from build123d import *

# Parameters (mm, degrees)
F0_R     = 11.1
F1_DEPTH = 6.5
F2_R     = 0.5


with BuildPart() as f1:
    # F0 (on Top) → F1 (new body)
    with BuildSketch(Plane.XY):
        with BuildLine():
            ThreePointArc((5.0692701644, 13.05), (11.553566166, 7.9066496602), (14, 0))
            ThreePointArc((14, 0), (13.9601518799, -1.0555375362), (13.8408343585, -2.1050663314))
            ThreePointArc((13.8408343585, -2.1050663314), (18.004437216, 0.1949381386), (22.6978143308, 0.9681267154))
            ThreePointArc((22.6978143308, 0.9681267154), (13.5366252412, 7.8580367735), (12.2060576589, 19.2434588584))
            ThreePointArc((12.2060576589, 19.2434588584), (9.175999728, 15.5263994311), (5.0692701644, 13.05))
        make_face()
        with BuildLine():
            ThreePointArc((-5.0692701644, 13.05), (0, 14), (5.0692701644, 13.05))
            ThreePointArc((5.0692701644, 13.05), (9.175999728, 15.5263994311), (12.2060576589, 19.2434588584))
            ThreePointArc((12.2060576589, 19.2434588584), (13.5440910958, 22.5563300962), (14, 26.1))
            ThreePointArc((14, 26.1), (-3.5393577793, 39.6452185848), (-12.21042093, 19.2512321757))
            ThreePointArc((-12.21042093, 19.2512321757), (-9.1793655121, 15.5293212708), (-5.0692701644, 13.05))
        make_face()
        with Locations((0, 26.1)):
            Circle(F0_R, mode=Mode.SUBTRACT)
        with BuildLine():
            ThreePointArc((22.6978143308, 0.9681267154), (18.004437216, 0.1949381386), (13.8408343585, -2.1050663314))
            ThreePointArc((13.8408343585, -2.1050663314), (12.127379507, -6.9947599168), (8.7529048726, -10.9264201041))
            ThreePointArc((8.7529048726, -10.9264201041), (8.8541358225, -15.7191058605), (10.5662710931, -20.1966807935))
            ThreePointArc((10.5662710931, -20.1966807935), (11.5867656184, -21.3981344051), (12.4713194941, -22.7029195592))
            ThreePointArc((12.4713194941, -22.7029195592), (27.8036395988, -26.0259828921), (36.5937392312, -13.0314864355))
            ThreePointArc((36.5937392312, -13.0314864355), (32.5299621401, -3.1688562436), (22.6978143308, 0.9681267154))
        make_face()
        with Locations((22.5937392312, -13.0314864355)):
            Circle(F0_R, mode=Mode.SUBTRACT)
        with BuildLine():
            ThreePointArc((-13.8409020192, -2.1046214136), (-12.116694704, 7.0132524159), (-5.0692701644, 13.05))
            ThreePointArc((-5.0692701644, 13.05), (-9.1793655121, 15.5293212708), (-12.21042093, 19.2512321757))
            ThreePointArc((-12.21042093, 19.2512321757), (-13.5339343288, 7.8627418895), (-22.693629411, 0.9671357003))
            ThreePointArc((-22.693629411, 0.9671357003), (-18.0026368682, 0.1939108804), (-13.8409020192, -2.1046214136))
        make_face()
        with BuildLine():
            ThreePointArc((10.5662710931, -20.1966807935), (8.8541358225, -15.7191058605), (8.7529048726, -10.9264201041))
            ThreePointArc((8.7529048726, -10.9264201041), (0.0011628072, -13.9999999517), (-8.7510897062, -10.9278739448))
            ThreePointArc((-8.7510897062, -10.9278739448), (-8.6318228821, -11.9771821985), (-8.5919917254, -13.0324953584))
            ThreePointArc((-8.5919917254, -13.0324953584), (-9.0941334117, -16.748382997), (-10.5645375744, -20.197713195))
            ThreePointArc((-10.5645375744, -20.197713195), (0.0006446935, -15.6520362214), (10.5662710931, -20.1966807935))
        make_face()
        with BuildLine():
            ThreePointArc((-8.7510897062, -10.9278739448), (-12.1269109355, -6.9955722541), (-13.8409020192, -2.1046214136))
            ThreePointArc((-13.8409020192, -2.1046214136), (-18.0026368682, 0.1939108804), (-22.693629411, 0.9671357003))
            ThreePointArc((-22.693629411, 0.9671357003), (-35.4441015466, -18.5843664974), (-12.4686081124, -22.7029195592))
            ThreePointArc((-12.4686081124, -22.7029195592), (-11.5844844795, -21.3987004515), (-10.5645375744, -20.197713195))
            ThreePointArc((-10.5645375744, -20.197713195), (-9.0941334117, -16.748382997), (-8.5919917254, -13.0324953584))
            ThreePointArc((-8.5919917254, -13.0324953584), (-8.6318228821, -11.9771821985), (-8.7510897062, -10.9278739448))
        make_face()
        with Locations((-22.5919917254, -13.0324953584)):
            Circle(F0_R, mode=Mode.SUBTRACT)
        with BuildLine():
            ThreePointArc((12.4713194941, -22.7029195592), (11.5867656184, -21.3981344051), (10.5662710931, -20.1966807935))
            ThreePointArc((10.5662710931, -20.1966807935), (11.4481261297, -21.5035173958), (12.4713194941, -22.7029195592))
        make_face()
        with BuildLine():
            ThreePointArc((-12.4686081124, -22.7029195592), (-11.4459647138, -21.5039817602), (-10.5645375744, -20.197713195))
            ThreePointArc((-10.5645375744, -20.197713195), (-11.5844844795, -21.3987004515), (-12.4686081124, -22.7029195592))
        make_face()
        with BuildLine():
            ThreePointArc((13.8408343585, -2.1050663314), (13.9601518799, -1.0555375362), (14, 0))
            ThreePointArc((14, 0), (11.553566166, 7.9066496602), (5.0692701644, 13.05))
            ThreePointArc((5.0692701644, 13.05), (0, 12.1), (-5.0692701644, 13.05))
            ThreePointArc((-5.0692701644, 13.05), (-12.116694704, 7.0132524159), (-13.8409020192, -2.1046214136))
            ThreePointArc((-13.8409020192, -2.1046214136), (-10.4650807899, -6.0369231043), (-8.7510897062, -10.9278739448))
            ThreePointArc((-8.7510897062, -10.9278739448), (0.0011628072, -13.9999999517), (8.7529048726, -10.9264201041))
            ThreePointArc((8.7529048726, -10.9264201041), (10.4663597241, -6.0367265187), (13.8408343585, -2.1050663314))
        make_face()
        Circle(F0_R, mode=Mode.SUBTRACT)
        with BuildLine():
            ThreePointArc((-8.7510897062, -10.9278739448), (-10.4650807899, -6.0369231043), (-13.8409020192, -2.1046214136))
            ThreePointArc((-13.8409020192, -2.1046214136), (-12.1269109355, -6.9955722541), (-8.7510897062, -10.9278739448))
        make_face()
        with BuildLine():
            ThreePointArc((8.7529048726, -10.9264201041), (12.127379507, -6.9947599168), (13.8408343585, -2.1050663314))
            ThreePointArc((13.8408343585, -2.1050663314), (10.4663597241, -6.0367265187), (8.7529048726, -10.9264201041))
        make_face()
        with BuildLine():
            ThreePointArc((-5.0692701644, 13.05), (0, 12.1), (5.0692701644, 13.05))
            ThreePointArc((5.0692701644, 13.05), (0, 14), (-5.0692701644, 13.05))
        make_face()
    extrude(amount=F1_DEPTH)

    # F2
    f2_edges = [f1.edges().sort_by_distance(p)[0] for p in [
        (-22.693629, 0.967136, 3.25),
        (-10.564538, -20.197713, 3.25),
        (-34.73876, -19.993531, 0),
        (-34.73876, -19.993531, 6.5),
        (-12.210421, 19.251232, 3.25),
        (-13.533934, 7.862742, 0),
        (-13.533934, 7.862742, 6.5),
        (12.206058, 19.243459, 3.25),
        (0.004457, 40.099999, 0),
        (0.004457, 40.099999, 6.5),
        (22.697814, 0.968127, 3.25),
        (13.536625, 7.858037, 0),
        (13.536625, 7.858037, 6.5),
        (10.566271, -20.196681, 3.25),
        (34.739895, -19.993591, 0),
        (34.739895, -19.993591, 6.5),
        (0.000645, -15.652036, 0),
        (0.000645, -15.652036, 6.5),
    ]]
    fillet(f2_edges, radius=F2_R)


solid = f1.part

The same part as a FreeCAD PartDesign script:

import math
import FreeCAD as App
import Part
import Sketcher


def edges_at(feature, points):
    """Names of the edges that pass closest to the given points."""
    edges = feature.Shape.Edges
    near = lambda p: min(range(len(edges)), key=lambda i: edges[i].distToShape(Part.Vertex(*p))[0])
    return sorted({f"Edge{near(p) + 1}" for p in points})

doc = App.newDocument("Part")
body = doc.addObject("PartDesign::Body", "Body")

# Sketch on XY plane
sketch1 = doc.addObject("Sketcher::SketchObject", "Sketch")
body.addObject(sketch1)
sketch1.AttachmentSupport = (doc.XY_Plane, [""])
sketch1.MapMode = "FlatFace"
sketch1.addGeometry(Part.ArcOfCircle(Part.Circle(App.Vector(0.001356, -30.204465, 0), App.Vector(0, 0, 1), 14.552429), math.radians(43.448746), math.radians(136.556852)), False)
sketch1.addGeometry(Part.ArcOfCircle(Part.Circle(App.Vector(22.593739, -13.031486, 0), App.Vector(0, 0, 1), 14), math.radians(-149.216225), math.radians(-136.305211)), False)
sketch1.addGeometry(Part.ArcOfCircle(Part.Circle(App.Vector(22.593739, -13.031486, 0), App.Vector(0, 0, 1), 14), math.radians(-136.305211), math.radians(0)), False)
sketch1.addGeometry(Part.ArcOfCircle(Part.Circle(App.Vector(22.593739, -13.031486, 0), App.Vector(0, 0, 1), 14), math.radians(0), math.radians(89.574063)), False)
sketch1.addGeometry(Part.ArcOfCircle(Part.Circle(App.Vector(26.157156, 15.103406, 0), App.Vector(0, 0, 1), 14.552429), math.radians(163.471503), math.radians(256.248238)), False)
sketch1.addGeometry(Part.ArcOfCircle(Part.Circle(App.Vector(0, 26.1, 0), App.Vector(0, 0, 1), 14), math.radians(-29.324344), math.radians(0)), False)
sketch1.addGeometry(Part.ArcOfCircle(Part.Circle(App.Vector(0, 26.1, 0), App.Vector(0, 0, 1), 14), math.radians(0), math.radians(209.287862)), False)
sketch1.addGeometry(Part.ArcOfCircle(Part.Circle(App.Vector(-26.158512, 15.101058, 0), App.Vector(0, 0, 1), 14.552429), math.radians(-76.225779), math.radians(16.570069)), False)
sketch1.addGeometry(Part.ArcOfCircle(Part.Circle(App.Vector(-22.591992, -13.032495, 0), App.Vector(0, 0, 1), 14), math.radians(90.415962), math.radians(316.310922)), False)
sketch1.addGeometry(Part.ArcOfCircle(Part.Circle(App.Vector(-22.591992, -13.032495, 0), App.Vector(0, 0, 1), 14), math.radians(-43.689078), math.radians(-30.783886)), False)
sketch1.addGeometry(Part.Circle(App.Vector(-22.591992, -13.032495, 0), App.Vector(0, 0, 1), 11.1), False)
sketch1.addGeometry(Part.Circle(App.Vector(0, 0, 0), App.Vector(0, 0, 1), 11.1), False)
sketch1.addGeometry(Part.Circle(App.Vector(22.593739, -13.031486, 0), App.Vector(0, 0, 1), 11.1), False)
sketch1.addGeometry(Part.Circle(App.Vector(0, 26.1, 0), App.Vector(0, 0, 1), 11.1), False)
sketch1.addConstraint(Sketcher.Constraint("Coincident", 0, 1, 1, 1))
sketch1.addConstraint(Sketcher.Constraint("Tangent", 1, 2, 2, 1))
sketch1.addConstraint(Sketcher.Constraint("Tangent", 2, 2, 3, 1))
sketch1.addConstraint(Sketcher.Constraint("Coincident", 3, 2, 4, 2))
sketch1.addConstraint(Sketcher.Constraint("Coincident", 4, 1, 5, 1))
sketch1.addConstraint(Sketcher.Constraint("Tangent", 5, 2, 6, 1))
sketch1.addConstraint(Sketcher.Constraint("Coincident", 6, 2, 7, 2))
sketch1.addConstraint(Sketcher.Constraint("Coincident", 7, 1, 8, 1))
sketch1.addConstraint(Sketcher.Constraint("Tangent", 8, 2, 9, 1))
sketch1.addConstraint(Sketcher.Constraint("Coincident", 9, 2, 0, 2))
sketch1.addConstraint(Sketcher.Constraint("Coincident", 11, 3, -1, 1))
sketch1.addConstraint(Sketcher.Constraint("Coincident", 3, 3, 1, 3))
sketch1.addConstraint(Sketcher.Constraint("Coincident", 10, 3, 8, 3))
sketch1.addConstraint(Sketcher.Constraint("Coincident", 12, 3, 1, 3))
sketch1.addConstraint(Sketcher.Constraint("Coincident", 13, 3, 5, 3))
sketch1.addConstraint(Sketcher.Constraint("Equal", 0, 4))
sketch1.addConstraint(Sketcher.Constraint("Equal", 3, 5))
sketch1.addConstraint(Sketcher.Constraint("Equal", 5, 6))
sketch1.addConstraint(Sketcher.Constraint("Equal", 4, 7))
sketch1.addConstraint(Sketcher.Constraint("Equal", 6, 8))
sketch1.addConstraint(Sketcher.Constraint("Equal", 8, 9))
sketch1.addConstraint(Sketcher.Constraint("Equal", 10, 11))
sketch1.addConstraint(Sketcher.Constraint("Equal", 11, 12))
sketch1.addConstraint(Sketcher.Constraint("Equal", 12, 13))
sketch1.addConstraint(Sketcher.Constraint("PointOnObject", 5, 3, -2))
sketch1.addConstraint(Sketcher.Constraint("Horizontal", 12, 3, 2, 2))
sketch1.addConstraint(Sketcher.Constraint("Horizontal", 13, 3, 5, 2))
sketch1.addConstraint(Sketcher.Constraint("Horizontal", 1, 2, 8, 2))
sketch1.addConstraint(Sketcher.Constraint("Radius", 1, 14.0))
sketch1.addConstraint(Sketcher.Constraint("Diameter", 10, 22.2))
sketch1.addConstraint(Sketcher.Constraint("DistanceY", -1, 1, 5, 3, 26.1))
sketch1.addConstraint(Sketcher.Constraint("Radius", 0, 14.552429))
sketch1.addConstraint(Sketcher.Constraint("DistanceX", 0, 3, 4, 3, 26.1558))
sketch1.addConstraint(Sketcher.Constraint("DistanceX", 4, 1, 4, 3, 13.951098))
sketch1.addConstraint(Sketcher.Constraint("DistanceX", -1, 1, 1, 3, 22.593739))
sketch1.addConstraint(Sketcher.Constraint("DistanceX", 7, 3, -1, 1, 26.158512))
sketch1.addConstraint(Sketcher.Constraint("DistanceY", -1, 1, 7, 3, 15.101058))
sketch1.addConstraint(Sketcher.Constraint("DistanceX", 8, 3, -1, 1, 22.591992))
sketch1.addConstraint(Sketcher.Constraint("DistanceX", -1, 1, 0, 1, 10.566271))
sketch1.addConstraint(Sketcher.Constraint("DistanceY", 0, 1, -1, 1, 20.196681))
sketch1.addConstraint(Sketcher.Constraint("DistanceX", -1, 1, 1, 2, 12.471319))
sketch1.addConstraint(Sketcher.Constraint("DistanceY", -1, 1, 4, 1, 19.243459))
sketch1.addConstraint(Sketcher.Constraint("DistanceX", 7, 1, -1, 1, 22.693629))
pad1 = doc.addObject("PartDesign::Pad", "Pad")
body.addObject(pad1)
pad1.Profile = sketch1
pad1.Length = 6.5
doc.recompute()

fillet = doc.addObject("PartDesign::Fillet", "Fillet")
body.addObject(fillet)
fillet.Base = (pad1, edges_at(pad1, [
    (-22.694, 0.967, 3.25),
    (-10.565, -20.198, 3.25),
    (-35.444, -18.584, 0),
    (-35.444, -18.584, 6.5),
    (-12.21, 19.251, 3.25),
    (-13.534, 7.863, 0),
    (-13.534, 7.863, 6.5),
    (12.206, 19.243, 3.25),
    (-3.539, 39.645, 0),
    (-3.539, 39.645, 6.5),
    (22.698, 0.968, 3.25),
    (13.537, 7.858, 0),
    (13.537, 7.858, 6.5),
    (10.566, -20.197, 3.25),
    (27.804, -26.026, 0),
    (27.804, -26.026, 6.5),
    (0.001, -15.652, 0),
    (0.001, -15.652, 6.5),
]))
fillet.Radius = 0.5

doc.recompute()
